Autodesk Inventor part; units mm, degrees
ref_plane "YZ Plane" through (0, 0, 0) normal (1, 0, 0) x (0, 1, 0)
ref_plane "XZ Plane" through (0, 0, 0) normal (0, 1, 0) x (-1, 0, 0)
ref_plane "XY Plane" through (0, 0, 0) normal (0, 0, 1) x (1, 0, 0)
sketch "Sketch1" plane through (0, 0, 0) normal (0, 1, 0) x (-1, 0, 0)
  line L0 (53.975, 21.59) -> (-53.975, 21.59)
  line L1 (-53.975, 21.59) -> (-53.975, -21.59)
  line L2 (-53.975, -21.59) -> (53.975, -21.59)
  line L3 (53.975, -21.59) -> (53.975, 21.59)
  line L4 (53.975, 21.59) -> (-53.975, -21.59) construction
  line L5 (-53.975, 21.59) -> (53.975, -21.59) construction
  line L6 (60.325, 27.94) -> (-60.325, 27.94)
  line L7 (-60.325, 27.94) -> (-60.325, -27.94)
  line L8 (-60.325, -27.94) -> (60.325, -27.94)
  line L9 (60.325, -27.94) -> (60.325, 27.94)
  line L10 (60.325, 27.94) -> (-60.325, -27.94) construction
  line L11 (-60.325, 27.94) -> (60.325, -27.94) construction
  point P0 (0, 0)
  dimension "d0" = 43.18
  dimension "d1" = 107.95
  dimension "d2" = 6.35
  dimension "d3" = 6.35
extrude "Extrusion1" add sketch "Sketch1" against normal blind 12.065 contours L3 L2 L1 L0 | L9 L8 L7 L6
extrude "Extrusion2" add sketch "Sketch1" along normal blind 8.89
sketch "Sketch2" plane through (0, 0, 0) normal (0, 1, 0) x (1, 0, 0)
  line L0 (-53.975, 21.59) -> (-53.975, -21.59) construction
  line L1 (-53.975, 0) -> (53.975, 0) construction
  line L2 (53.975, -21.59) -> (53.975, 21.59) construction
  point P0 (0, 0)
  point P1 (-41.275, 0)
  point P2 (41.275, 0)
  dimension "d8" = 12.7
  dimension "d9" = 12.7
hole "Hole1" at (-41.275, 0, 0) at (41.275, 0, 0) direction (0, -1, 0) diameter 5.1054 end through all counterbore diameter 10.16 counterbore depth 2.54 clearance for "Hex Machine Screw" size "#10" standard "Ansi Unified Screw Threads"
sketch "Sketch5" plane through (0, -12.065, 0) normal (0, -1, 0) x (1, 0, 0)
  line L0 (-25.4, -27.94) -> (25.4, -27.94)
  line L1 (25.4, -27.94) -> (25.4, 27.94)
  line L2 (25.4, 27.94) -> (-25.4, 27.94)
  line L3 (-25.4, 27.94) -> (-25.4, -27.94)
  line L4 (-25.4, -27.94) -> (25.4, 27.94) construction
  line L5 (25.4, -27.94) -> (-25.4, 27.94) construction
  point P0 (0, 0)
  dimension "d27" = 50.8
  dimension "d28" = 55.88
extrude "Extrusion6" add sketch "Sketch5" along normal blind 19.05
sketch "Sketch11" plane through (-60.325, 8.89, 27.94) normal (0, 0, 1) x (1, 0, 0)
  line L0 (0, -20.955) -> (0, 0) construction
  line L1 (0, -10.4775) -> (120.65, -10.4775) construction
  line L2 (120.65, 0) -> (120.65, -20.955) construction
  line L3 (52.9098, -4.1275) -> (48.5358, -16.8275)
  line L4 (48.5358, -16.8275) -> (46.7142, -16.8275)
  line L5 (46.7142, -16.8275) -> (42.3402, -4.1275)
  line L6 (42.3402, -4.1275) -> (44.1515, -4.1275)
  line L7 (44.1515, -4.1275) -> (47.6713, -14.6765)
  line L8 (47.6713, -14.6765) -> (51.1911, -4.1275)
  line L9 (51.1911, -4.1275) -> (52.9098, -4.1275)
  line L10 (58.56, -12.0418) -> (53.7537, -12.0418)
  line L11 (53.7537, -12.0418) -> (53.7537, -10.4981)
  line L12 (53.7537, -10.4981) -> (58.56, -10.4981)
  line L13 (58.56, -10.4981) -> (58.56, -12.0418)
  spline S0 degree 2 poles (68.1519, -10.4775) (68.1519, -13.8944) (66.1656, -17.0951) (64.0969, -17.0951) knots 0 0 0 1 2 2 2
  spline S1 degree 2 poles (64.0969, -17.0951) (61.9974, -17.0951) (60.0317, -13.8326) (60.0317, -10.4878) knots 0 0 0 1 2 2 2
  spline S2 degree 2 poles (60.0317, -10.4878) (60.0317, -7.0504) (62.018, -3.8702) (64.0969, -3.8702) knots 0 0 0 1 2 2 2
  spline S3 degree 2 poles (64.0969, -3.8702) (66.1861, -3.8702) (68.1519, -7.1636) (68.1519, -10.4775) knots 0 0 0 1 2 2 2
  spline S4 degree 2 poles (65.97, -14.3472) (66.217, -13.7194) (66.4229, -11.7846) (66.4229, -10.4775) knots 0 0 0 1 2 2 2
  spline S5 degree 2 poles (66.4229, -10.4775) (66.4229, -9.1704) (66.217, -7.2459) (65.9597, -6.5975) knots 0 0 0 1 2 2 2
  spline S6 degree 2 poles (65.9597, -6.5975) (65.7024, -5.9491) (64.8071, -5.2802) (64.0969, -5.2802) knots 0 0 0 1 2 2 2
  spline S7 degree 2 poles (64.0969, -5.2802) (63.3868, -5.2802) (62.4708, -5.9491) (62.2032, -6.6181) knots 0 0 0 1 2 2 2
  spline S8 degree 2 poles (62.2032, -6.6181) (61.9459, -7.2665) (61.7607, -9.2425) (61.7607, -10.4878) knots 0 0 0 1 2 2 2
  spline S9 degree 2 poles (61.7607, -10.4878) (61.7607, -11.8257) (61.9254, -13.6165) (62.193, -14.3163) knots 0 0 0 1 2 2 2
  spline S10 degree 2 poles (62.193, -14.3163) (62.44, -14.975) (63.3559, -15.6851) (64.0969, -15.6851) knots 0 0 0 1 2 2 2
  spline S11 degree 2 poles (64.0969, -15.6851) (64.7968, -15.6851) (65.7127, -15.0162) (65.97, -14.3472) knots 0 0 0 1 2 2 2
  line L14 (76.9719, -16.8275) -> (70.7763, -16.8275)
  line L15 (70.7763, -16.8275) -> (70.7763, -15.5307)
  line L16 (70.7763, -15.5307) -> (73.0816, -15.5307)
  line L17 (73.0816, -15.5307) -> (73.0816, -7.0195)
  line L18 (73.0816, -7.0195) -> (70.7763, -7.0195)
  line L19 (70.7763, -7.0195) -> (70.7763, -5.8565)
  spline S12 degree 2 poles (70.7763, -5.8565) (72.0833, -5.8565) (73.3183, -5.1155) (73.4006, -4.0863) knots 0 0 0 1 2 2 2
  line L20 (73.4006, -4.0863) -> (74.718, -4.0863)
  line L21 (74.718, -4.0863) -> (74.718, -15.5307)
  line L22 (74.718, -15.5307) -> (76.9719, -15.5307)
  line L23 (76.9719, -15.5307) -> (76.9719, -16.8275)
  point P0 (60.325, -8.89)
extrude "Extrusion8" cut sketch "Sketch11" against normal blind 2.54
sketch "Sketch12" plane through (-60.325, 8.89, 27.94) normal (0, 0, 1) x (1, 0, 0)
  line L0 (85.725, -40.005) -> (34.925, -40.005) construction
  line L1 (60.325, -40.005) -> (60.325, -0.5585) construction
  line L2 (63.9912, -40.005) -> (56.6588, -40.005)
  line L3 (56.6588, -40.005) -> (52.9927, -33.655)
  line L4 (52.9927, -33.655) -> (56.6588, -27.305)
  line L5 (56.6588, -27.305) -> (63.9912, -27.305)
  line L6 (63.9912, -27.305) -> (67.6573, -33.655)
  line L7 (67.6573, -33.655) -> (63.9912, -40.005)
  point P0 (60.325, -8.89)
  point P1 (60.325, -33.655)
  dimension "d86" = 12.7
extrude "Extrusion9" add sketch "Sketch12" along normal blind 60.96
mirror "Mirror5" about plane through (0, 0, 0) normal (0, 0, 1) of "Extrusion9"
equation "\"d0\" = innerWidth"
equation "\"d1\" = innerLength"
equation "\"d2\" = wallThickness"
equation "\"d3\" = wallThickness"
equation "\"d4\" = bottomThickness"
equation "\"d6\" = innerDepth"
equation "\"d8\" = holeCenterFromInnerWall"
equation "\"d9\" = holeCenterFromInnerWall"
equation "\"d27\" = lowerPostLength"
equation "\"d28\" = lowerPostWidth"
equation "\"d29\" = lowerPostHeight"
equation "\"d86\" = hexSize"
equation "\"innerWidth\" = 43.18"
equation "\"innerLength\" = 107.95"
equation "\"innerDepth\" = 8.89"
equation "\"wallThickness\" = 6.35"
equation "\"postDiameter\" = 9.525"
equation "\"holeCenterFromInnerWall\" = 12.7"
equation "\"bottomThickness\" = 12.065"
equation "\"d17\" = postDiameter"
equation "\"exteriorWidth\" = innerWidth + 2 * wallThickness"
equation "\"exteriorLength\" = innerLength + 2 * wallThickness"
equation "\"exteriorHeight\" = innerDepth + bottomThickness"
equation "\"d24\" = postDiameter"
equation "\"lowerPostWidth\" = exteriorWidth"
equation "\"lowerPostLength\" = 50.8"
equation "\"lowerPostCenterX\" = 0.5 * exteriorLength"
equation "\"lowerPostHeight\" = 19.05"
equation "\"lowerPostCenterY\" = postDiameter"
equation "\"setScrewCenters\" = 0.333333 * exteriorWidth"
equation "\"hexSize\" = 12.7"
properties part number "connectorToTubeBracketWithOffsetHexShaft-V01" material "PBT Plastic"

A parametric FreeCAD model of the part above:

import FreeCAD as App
import Part
import Sketcher

V = App.Vector
Q = App.Units.Quantity

doc = App.newDocument("Part")
body = doc.addObject("PartDesign::Body", "Body")

sketch1 = body.newObject("Sketcher::SketchObject", "Sketch")
sketch1.AttachmentSupport = (doc.getObject("XZ_Plane"), [""])
sketch1.MapMode = "FlatFace"
sketch1.addGeometry(Part.LineSegment(V(-60, -28, 0), V(-60, 28, 0)), False)
sketch1.addGeometry(Part.LineSegment(V(-60, 28, 0), V(60, 28, 0)), False)
sketch1.addGeometry(Part.LineSegment(V(60, 28, 0), V(60, -28, 0)), False)
sketch1.addGeometry(Part.LineSegment(V(60, -28, 0), V(-60, -28, 0)), False)
sketch1.addConstraint(Sketcher.Constraint("Coincident", 0, 2, 1, 1))
sketch1.addConstraint(Sketcher.Constraint("Coincident", 1, 2, 2, 1))
sketch1.addConstraint(Sketcher.Constraint("Coincident", 2, 2, 3, 1))
sketch1.addConstraint(Sketcher.Constraint("Coincident", 3, 2, 0, 1))
sketch1.addConstraint(Sketcher.Constraint("Vertical", 0))
sketch1.addConstraint(Sketcher.Constraint("Horizontal", 1))
sketch1.addConstraint(Sketcher.Constraint("Vertical", 2))
sketch1.addConstraint(Sketcher.Constraint("Horizontal", 3))
sketch1.addConstraint(Sketcher.Constraint("Symmetric", 0, 2, 2, 2, -1, 1))
sketch1.addConstraint(Sketcher.Constraint("DistanceY", 0, 1, 0, 2, Q("2.2 in")))
sketch1.addConstraint(Sketcher.Constraint("DistanceX", 1, 1, 1, 2, Q("4.75 in")))
pad1 = body.newObject("PartDesign::Pad", "Pad")
pad1.Profile = sketch1
pad1.Length = Q("0.475 in")

sketch2 = body.newObject("Sketcher::SketchObject", "Sketch001")
sketch2.AttachmentSupport = (doc.getObject("XZ_Plane"), [""])
sketch2.MapMode = "FlatFace"
sketch2.addGeometry(Part.LineSegment(V(-60, -28, 0), V(-60, 28, 0)), False)
sketch2.addGeometry(Part.LineSegment(V(-60, 28, 0), V(60, 28, 0)), False)
sketch2.addGeometry(Part.LineSegment(V(60, 28, 0), V(60, -28, 0)), False)
sketch2.addGeometry(Part.LineSegment(V(60, -28, 0), V(-60, -28, 0)), False)
sketch2.addGeometry(Part.LineSegment(V(54, 22, 0), V(-54, 22, 0)), False)
sketch2.addGeometry(Part.LineSegment(V(-54, 22, 0), V(-54, -22, 0)), False)
sketch2.addGeometry(Part.LineSegment(V(-54, -22, 0), V(54, -22, 0)), False)
sketch2.addGeometry(Part.LineSegment(V(54, -22, 0), V(54, 22, 0)), False)
sketch2.addConstraint(Sketcher.Constraint("Coincident", 0, 2, 1, 1))
sketch2.addConstraint(Sketcher.Constraint("Coincident", 1, 2, 2, 1))
sketch2.addConstraint(Sketcher.Constraint("Coincident", 2, 2, 3, 1))
sketch2.addConstraint(Sketcher.Constraint("Coincident", 3, 2, 0, 1))
sketch2.addConstraint(Sketcher.Constraint("Coincident", 4, 2, 5, 1))
sketch2.addConstraint(Sketcher.Constraint("Coincident", 5, 2, 6, 1))
sketch2.addConstraint(Sketcher.Constraint("Coincident", 6, 2, 7, 1))
sketch2.addConstraint(Sketcher.Constraint("Coincident", 7, 2, 4, 1))
sketch2.addConstraint(Sketcher.Constraint("Vertical", 0))
sketch2.addConstraint(Sketcher.Constraint("Horizontal", 1))
sketch2.addConstraint(Sketcher.Constraint("Vertical", 2))
sketch2.addConstraint(Sketcher.Constraint("Horizontal", 3))
sketch2.addConstraint(Sketcher.Constraint("Horizontal", 4))
sketch2.addConstraint(Sketcher.Constraint("Vertical", 5))
sketch2.addConstraint(Sketcher.Constraint("Horizontal", 6))
sketch2.addConstraint(Sketcher.Constraint("Vertical", 7))
sketch2.addConstraint(Sketcher.Constraint("Symmetric", 0, 2, 2, 2, -1, 1))
sketch2.addConstraint(Sketcher.Constraint("Symmetric", 4, 2, 6, 2, -1, 1))
sketch2.addConstraint(Sketcher.Constraint("DistanceY", 5, 2, 5, 1, Q("1.7 in")))
sketch2.addConstraint(Sketcher.Constraint("DistanceX", 4, 2, 4, 1, Q("4.25 in")))
sketch2.addConstraint(Sketcher.Constraint("DistanceX", 0, 2, 4, 2, Q("0.25 in")))
sketch2.addConstraint(Sketcher.Constraint("DistanceY", 4, 2, 0, 2, Q("0.25 in")))
pad2 = body.newObject("PartDesign::Pad", "Pad001")
pad2.Profile = sketch2
pad2.Length = Q("0.35 in")
pad2.Reversed = True

sketch3 = body.newObject("Sketcher::SketchObject", "Sketch002")
sketch3.AttachmentSupport = (doc.getObject("XZ_Plane"), [""])
sketch3.MapMode = "FlatFace"
sketch3.addGeometry(Part.Circle(V(-41.3, 0, 0), V(0, 0, 1), 2.6), False)
sketch3.addGeometry(Part.Circle(V(41.3, 0, 0), V(0, 0, 1), 2.6), False)
sketch3.addConstraint(Sketcher.Constraint("Equal", 0, 1))
sketch3.addConstraint(Sketcher.Constraint("Symmetric", 0, 3, 1, 3, -1, 1))
sketch3.addConstraint(Sketcher.Constraint("PointOnObject", 0, 3, -1))
sketch3.addConstraint(Sketcher.Constraint("Diameter", 0, Q("0.201 in")))
sketch3.addConstraint(Sketcher.Constraint("DistanceX", 0, 3, 1, 3, Q("3.25 in")))
doc.recompute()
hole = body.newObject("PartDesign::Hole", "Hole")
hole.Profile = sketch3
hole.ThreadType = "None"
hole.Diameter = Q("0.201 in")
hole.DepthType = "ThroughAll"
hole.HoleCutType = "Counterbore"
hole.HoleCutDiameter = Q("0.4 in")
hole.HoleCutDepth = Q("0.1 in")
hole.Reversed = True

sketch4 = body.newObject("Sketcher::SketchObject", "Sketch003")
sketch4.AttachmentSupport = (doc.getObject("XZ_Plane"), [""])
sketch4.MapMode = "FlatFace"
sketch4.AttachmentOffset = App.Placement(V(0, 0, 0.475 * 25.4), App.Rotation())
sketch4.addGeometry(Part.LineSegment(V(-25, 28, 0), V(-25, -28, 0)), False)
sketch4.addGeometry(Part.LineSegment(V(-25, -28, 0), V(25, -28, 0)), False)
sketch4.addGeometry(Part.LineSegment(V(25, -28, 0), V(25, 28, 0)), False)
sketch4.addGeometry(Part.LineSegment(V(25, 28, 0), V(-25, 28, 0)), False)
sketch4.addConstraint(Sketcher.Constraint("Coincident", 0, 2, 1, 1))
sketch4.addConstraint(Sketcher.Constraint("Coincident", 1, 2, 2, 1))
sketch4.addConstraint(Sketcher.Constraint("Coincident", 2, 2, 3, 1))
sketch4.addConstraint(Sketcher.Constraint("Coincident", 3, 2, 0, 1))
sketch4.addConstraint(Sketcher.Constraint("Vertical", 0))
sketch4.addConstraint(Sketcher.Constraint("Horizontal", 1))
sketch4.addConstraint(Sketcher.Constraint("Vertical", 2))
sketch4.addConstraint(Sketcher.Constraint("Horizontal", 3))
sketch4.addConstraint(Sketcher.Constraint("Symmetric", 0, 2, 2, 2, -1, 1))
sketch4.addConstraint(Sketcher.Constraint("DistanceX", 1, 1, 1, 2, Q("2 in")))
sketch4.addConstraint(Sketcher.Constraint("DistanceY", 0, 2, 0, 1, Q("2.2 in")))
pad3 = body.newObject("PartDesign::Pad", "Pad002")
pad3.Profile = sketch4
pad3.Length = Q("0.75 in")

sketch5 = body.newObject("Sketcher::SketchObject", "Sketch004")
sketch5.AttachmentSupport = (doc.getObject("XY_Plane"), [""])
sketch5.MapMode = "FlatFace"
sketch5.AttachmentOffset = App.Placement(V(0, 0, 1.1 * 25.4), App.Rotation())
sketch5.addGeometry(Part.LineSegment(V(-11.7892, -7.9375, 0), V(-7.4152, 4.7625, 0)), False)
sketch5.addGeometry(Part.LineSegment(V(-7.4152, 4.7625, 0), V(-9.1339, 4.7625, 0)), False)
sketch5.addGeometry(Part.LineSegment(V(-9.1339, 4.7625, 0), V(-12.6537, -5.7865, 0)), False)
sketch5.addGeometry(Part.LineSegment(V(-12.6537, -5.7865, 0), V(-16.1735, 4.7625, 0)), False)
sketch5.addGeometry(Part.LineSegment(V(-16.1735, 4.7625, 0), V(-17.9848, 4.7625, 0)), False)
sketch5.addGeometry(Part.LineSegment(V(-17.9848, 4.7625, 0), V(-13.6108, -7.9375, 0)), False)
sketch5.addGeometry(Part.LineSegment(V(-13.6108, -7.9375, 0), V(-11.7892, -7.9375, 0)), False)
sketch5.addGeometry(Part.LineSegment(V(-6.5713, -3.1518, 0), V(-1.765, -3.1518, 0)), False)
sketch5.addGeometry(Part.LineSegment(V(-1.765, -3.1518, 0), V(-1.765, -1.6081, 0)), False)
sketch5.addGeometry(Part.LineSegment(V(-1.765, -1.6081, 0), V(-6.5713, -1.6081, 0)), False)
sketch5.addGeometry(Part.LineSegment(V(-6.5713, -1.6081, 0), V(-6.5713, -3.1518, 0)), False)
sketch5.addGeometry(Part.BSplineCurve([V(7.8269, -1.5875, 0), V(7.8269, -5.0044, 0), V(5.8406, -8.2051, 0), V(3.7719, -8.2051, 0)], [3, 1, 3], [0, 1, 2], False, 2, [1, 1, 1, 1], False), False)
sketch5.addGeometry(Part.BSplineCurve([V(3.7719, 5.0198, 0), V(5.8611, 5.0198, 0), V(7.8269, 1.7264, 0), V(7.8269, -1.5875, 0)], [3, 1, 3], [0, 1, 2], False, 2, [1, 1, 1, 1], False), False)
sketch5.addGeometry(Part.BSplineCurve([V(-0.2933, -1.5978, 0), V(-0.2933, 1.8396, 0), V(1.693, 5.0198, 0), V(3.7719, 5.0198, 0)], [3, 1, 3], [0, 1, 2], False, 2, [1, 1, 1, 1], False), False)
sketch5.addGeometry(Part.BSplineCurve([V(3.7719, -8.2051, 0), V(1.6724, -8.2051, 0), V(-0.2933, -4.9426, 0), V(-0.2933, -1.5978, 0)], [3, 1, 3], [0, 1, 2], False, 2, [1, 1, 1, 1], False), False)
sketch5.addGeometry(Part.BSplineCurve([V(5.645, -5.4572, 0), V(5.892, -4.8294, 0), V(6.0979, -2.8946, 0), V(6.0979, -1.5875, 0)], [3, 1, 3], [0, 1, 2], False, 2, [1, 1, 1, 1], False), False)
sketch5.addGeometry(Part.BSplineCurve([V(3.7719, -6.7951, 0), V(4.4718, -6.7951, 0), V(5.3877, -6.1262, 0), V(5.645, -5.4572, 0)], [3, 1, 3], [0, 1, 2], False, 2, [1, 1, 1, 1], False), False)
sketch5.addGeometry(Part.BSplineCurve([V(1.868, -5.4263, 0), V(2.115, -6.085, 0), V(3.0309, -6.7951, 0), V(3.7719, -6.7951, 0)], [3, 1, 3], [0, 1, 2], False, 2, [1, 1, 1, 1], False), False)
sketch5.addGeometry(Part.BSplineCurve([V(1.4357, -1.5978, 0), V(1.4357, -2.9357, 0), V(1.6004, -4.7265, 0), V(1.868, -5.4263, 0)], [3, 1, 3], [0, 1, 2], False, 2, [1, 1, 1, 1], False), False)
sketch5.addGeometry(Part.BSplineCurve([V(1.8782, 2.2719, 0), V(1.6209, 1.6235, 0), V(1.4357, -0.3525, 0), V(1.4357, -1.5978, 0)], [3, 1, 3], [0, 1, 2], False, 2, [1, 1, 1, 1], False), False)
sketch5.addGeometry(Part.BSplineCurve([V(3.7719, 3.6098, 0), V(3.0618, 3.6098, 0), V(2.1458, 2.9409, 0), V(1.8782, 2.2719, 0)], [3, 1, 3], [0, 1, 2], False, 2, [1, 1, 1, 1], False), False)
sketch5.addGeometry(Part.BSplineCurve([V(5.6347, 2.2925, 0), V(5.3774, 2.9409, 0), V(4.4821, 3.6098, 0), V(3.7719, 3.6098, 0)], [3, 1, 3], [0, 1, 2], False, 2, [1, 1, 1, 1], False), False)
sketch5.addGeometry(Part.BSplineCurve([V(6.0979, -1.5875, 0), V(6.0979, -0.2804, 0), V(5.892, 1.6441, 0), V(5.6347, 2.2925, 0)], [3, 1, 3], [0, 1, 2], False, 2, [1, 1, 1, 1], False), False)
sketch5.addGeometry(Part.LineSegment(V(10.4513, -7.9375, 0), V(16.6469, -7.9375, 0)), False)
sketch5.addGeometry(Part.LineSegment(V(16.6469, -7.9375, 0), V(16.6469, -6.6407, 0)), False)
sketch5.addGeometry(Part.LineSegment(V(16.6469, -6.6407, 0), V(14.393, -6.6407, 0)), False)
sketch5.addGeometry(Part.LineSegment(V(14.393, -6.6407, 0), V(14.393, 4.8037, 0)), False)
sketch5.addGeometry(Part.LineSegment(V(14.393, 4.8037, 0), V(13.0756, 4.8037, 0)), False)
sketch5.addGeometry(Part.BSplineCurve([V(10.4513, 3.0335, 0), V(11.7583, 3.0335, 0), V(12.9933, 3.7745, 0), V(13.0756, 4.8037, 0)], [3, 1, 3], [0, 1, 2], False, 2, [1, 1, 1, 1], False), False)
sketch5.addGeometry(Part.LineSegment(V(10.4513, 3.0335, 0), V(10.4513, 1.8705, 0)), False)
sketch5.addGeometry(Part.LineSegment(V(10.4513, 1.8705, 0), V(12.7566, 1.8705, 0)), False)
sketch5.addGeometry(Part.LineSegment(V(12.7566, 1.8705, 0), V(12.7566, -6.6407, 0)), False)
sketch5.addGeometry(Part.LineSegment(V(12.7566, -6.6407, 0), V(10.4513, -6.6407, 0)), False)
sketch5.addGeometry(Part.LineSegment(V(10.4513, -6.6407, 0), V(10.4513, -7.9375, 0)), False)
sketch5.addConstraint(Sketcher.Constraint("Block", 11))
sketch5.addConstraint(Sketcher.Constraint("Block", 12))
sketch5.addConstraint(Sketcher.Constraint("Block", 13))
sketch5.addConstraint(Sketcher.Constraint("Block", 14))
sketch5.addConstraint(Sketcher.Constraint("Block", 15))
sketch5.addConstraint(Sketcher.Constraint("Block", 16))
sketch5.addConstraint(Sketcher.Constraint("Block", 17))
sketch5.addConstraint(Sketcher.Constraint("Block", 18))
sketch5.addConstraint(Sketcher.Constraint("Block", 19))
sketch5.addConstraint(Sketcher.Constraint("Block", 20))
sketch5.addConstraint(Sketcher.Constraint("Block", 21))
sketch5.addConstraint(Sketcher.Constraint("Block", 22))
sketch5.addConstraint(Sketcher.Constraint("Block", 28))
sketch5.addConstraint(Sketcher.Constraint("Coincident", 0, 2, 1, 1))
sketch5.addConstraint(Sketcher.Constraint("Coincident", 1, 2, 2, 1))
sketch5.addConstraint(Sketcher.Constraint("Coincident", 2, 2, 3, 1))
sketch5.addConstraint(Sketcher.Constraint("Coincident", 3, 2, 4, 1))
sketch5.addConstraint(Sketcher.Constraint("Coincident", 4, 2, 5, 1))
sketch5.addConstraint(Sketcher.Constraint("Coincident", 5, 2, 6, 1))
sketch5.addConstraint(Sketcher.Constraint("Coincident", 6, 2, 0, 1))
sketch5.addConstraint(Sketcher.Constraint("Coincident", 7, 2, 8, 1))
sketch5.addConstraint(Sketcher.Constraint("Coincident", 8, 2, 9, 1))
sketch5.addConstraint(Sketcher.Constraint("Coincident", 9, 2, 10, 1))
sketch5.addConstraint(Sketcher.Constraint("Coincident", 10, 2, 7, 1))
sketch5.addConstraint(Sketcher.Constraint("Coincident", 23, 2, 24, 1))
sketch5.addConstraint(Sketcher.Constraint("Coincident", 24, 2, 25, 1))
sketch5.addConstraint(Sketcher.Constraint("Coincident", 25, 2, 26, 1))
sketch5.addConstraint(Sketcher.Constraint("Coincident", 26, 2, 27, 1))
sketch5.addConstraint(Sketcher.Constraint("Coincident", 27, 2, 28, 2))
sketch5.addConstraint(Sketcher.Constraint("Coincident", 28, 1, 29, 1))
sketch5.addConstraint(Sketcher.Constraint("Coincident", 29, 2, 30, 1))
sketch5.addConstraint(Sketcher.Constraint("Coincident", 30, 2, 31, 1))
sketch5.addConstraint(Sketcher.Constraint("Coincident", 31, 2, 32, 1))
sketch5.addConstraint(Sketcher.Constraint("Coincident", 32, 2, 33, 1))
sketch5.addConstraint(Sketcher.Constraint("Coincident", 33, 2, 23, 1))
sketch5.addConstraint(Sketcher.Constraint("Horizontal", 1))
sketch5.addConstraint(Sketcher.Constraint("Horizontal", 4))
sketch5.addConstraint(Sketcher.Constraint("Horizontal", 6))
sketch5.addConstraint(Sketcher.Constraint("Horizontal", 7))
sketch5.addConstraint(Sketcher.Constraint("Vertical", 8))
sketch5.addConstraint(Sketcher.Constraint("Horizontal", 9))
sketch5.addConstraint(Sketcher.Constraint("Vertical", 10))
sketch5.addConstraint(Sketcher.Constraint("Horizontal", 23))
sketch5.addConstraint(Sketcher.Constraint("Vertical", 24))
sketch5.addConstraint(Sketcher.Constraint("Horizontal", 25))
sketch5.addConstraint(Sketcher.Constraint("Vertical", 26))
sketch5.addConstraint(Sketcher.Constraint("Horizontal", 27))
sketch5.addConstraint(Sketcher.Constraint("Vertical", 29))
sketch5.addConstraint(Sketcher.Constraint("Horizontal", 30))
sketch5.addConstraint(Sketcher.Constraint("Vertical", 31))
sketch5.addConstraint(Sketcher.Constraint("Horizontal", 32))
sketch5.addConstraint(Sketcher.Constraint("Vertical", 33))
sketch5.addConstraint(Sketcher.Constraint("Horizontal", 1, 2, 3, 2))
sketch5.addConstraint(Sketcher.Constraint("Horizontal", 6, 2, 23, 2))
sketch5.addConstraint(Sketcher.Constraint("Horizontal", 25, 2, 31, 2))
sketch5.addConstraint(Sketcher.Constraint("Vertical", 29, 2, 32, 2))
sketch5.addConstraint(Sketcher.Constraint("Equal", 2, 3))
sketch5.addConstraint(Sketcher.Constraint("Equal", 0, 5))
sketch5.addConstraint(Sketcher.Constraint("DistanceY", 5, 2, 3, 2, Q("0.5 in")))
sketch5.addConstraint(Sketcher.Constraint("DistanceX", 4, 2, 4, 1, Q("0.0713 in")))
sketch5.addConstraint(Sketcher.Constraint("DistanceY", -1, 1, 0, 2, Q("0.1875 in")))
sketch5.addConstraint(Sketcher.Constraint("DistanceX", 1, 2, 1, 1, 1.7187))
sketch5.addConstraint(Sketcher.Constraint("DistanceX", 6, 1, 6, 2, 1.8216))
sketch5.addConstraint(Sketcher.Constraint("DistanceX", 7, 1, 7, 2, 4.8063))
sketch5.addConstraint(Sketcher.Constraint("DistanceX", 23, 1, 23, 2, 6.1956))
sketch5.addConstraint(Sketcher.Constraint("DistanceX", 25, 2, 25, 1, 2.254))
sketch5.addConstraint(Sketcher.Constraint("DistanceX", 30, 1, 30, 2, 2.3053))
sketch5.addConstraint(Sketcher.Constraint("DistanceY", 8, 1, 8, 2, 1.5437))
sketch5.addConstraint(Sketcher.Constraint("DistanceY", 24, 1, 24, 2, 1.2968))
sketch5.addConstraint(Sketcher.Constraint("DistanceY", 29, 2, 29, 1, 1.163))
sketch5.addConstraint(Sketcher.Constraint("DistanceX", 1, 2, -1, 1, Q("0.3596 in")))
sketch5.addConstraint(Sketcher.Constraint("DistanceX", 7, 2, -1, 1, Q("0.0695 in")))
sketch5.addConstraint(Sketcher.Constraint("DistanceY", 8, 2, -1, 1, Q("0.0633 in")))
sketch5.addConstraint(Sketcher.Constraint("DistanceX", 3, 2, 5, 2, Q("0.1009 in")))
sketch5.addConstraint(Sketcher.Constraint("DistanceY", 2, 2, 8, 2, Q("0.1645 in")))
pocket1 = body.newObject("PartDesign::Pocket", "Pocket")
pocket1.Profile = sketch5
pocket1.Length = Q("0.1 in")

sketch6 = body.newObject("Sketcher::SketchObject", "Sketch005")
sketch6.AttachmentSupport = (doc.getObject("XY_Plane"), [""])
sketch6.MapMode = "FlatFace"
sketch6.AttachmentOffset = App.Placement(V(0, 0, 1.1 * 25.4), App.Rotation())
sketch6.addGeometry(Part.LineSegment(V(-4, -31, 0), V(4, -31, 0)), False)
sketch6.addGeometry(Part.LineSegment(V(4, -31, 0), V(7, -25, 0)), False)
sketch6.addGeometry(Part.LineSegment(V(7, -25, 0), V(4, -18, 0)), False)
sketch6.addGeometry(Part.LineSegment(V(4, -18, 0), V(-4, -18, 0)), False)
sketch6.addGeometry(Part.LineSegment(V(-4, -18, 0), V(-7, -25, 0)), False)
sketch6.addGeometry(Part.LineSegment(V(-7, -25, 0), V(-4, -31, 0)), False)
sketch6.addConstraint(Sketcher.Constraint("Coincident", 0, 2, 1, 1))
sketch6.addConstraint(Sketcher.Constraint("Coincident", 1, 2, 2, 1))
sketch6.addConstraint(Sketcher.Constraint("Coincident", 2, 2, 3, 1))
sketch6.addConstraint(Sketcher.Constraint("Coincident", 3, 2, 4, 1))
sketch6.addConstraint(Sketcher.Constraint("Coincident", 4, 2, 5, 1))
sketch6.addConstraint(Sketcher.Constraint("Coincident", 5, 2, 0, 1))
sketch6.addConstraint(Sketcher.Constraint("Horizontal", 0))
sketch6.addConstraint(Sketcher.Constraint("Horizontal", 3))
sketch6.addConstraint(Sketcher.Constraint("Symmetric", 1, 2, 4, 2, -2))
sketch6.addConstraint(Sketcher.Constraint("Parallel", 1, 4))
sketch6.addConstraint(Sketcher.Constraint("Parallel", 2, 5))
sketch6.addConstraint(Sketcher.Constraint("Vertical", 0, 2, 2, 2))
sketch6.addConstraint(Sketcher.Constraint("Vertical", 3, 2, 5, 2))
sketch6.addConstraint(Sketcher.Constraint("DistanceY", 0, 2, 2, 2, Q("0.5 in")))
sketch6.addConstraint(Sketcher.Constraint("Angle", 1, Q("60.0005 deg")))
sketch6.addConstraint(Sketcher.Constraint("DistanceY", 0, 2, -1, 1, Q("1.225 in")))
sketch6.addConstraint(Sketcher.Constraint("DistanceX", 3, 2, 1, 2, Q("0.433 in")))
pad4 = body.newObject("PartDesign::Pad", "Pad003")
pad4.Profile = sketch6
pad4.Length = Q("2.4 in")
doc.recompute()

mirrored = body.newObject("PartDesign::Mirrored", "Mirrored")
mirrored.Originals = [pad4]
mirrored.MirrorPlane = (doc.getObject("XY_Plane"), [""])
body.Tip = mirrored

doc.recompute()
